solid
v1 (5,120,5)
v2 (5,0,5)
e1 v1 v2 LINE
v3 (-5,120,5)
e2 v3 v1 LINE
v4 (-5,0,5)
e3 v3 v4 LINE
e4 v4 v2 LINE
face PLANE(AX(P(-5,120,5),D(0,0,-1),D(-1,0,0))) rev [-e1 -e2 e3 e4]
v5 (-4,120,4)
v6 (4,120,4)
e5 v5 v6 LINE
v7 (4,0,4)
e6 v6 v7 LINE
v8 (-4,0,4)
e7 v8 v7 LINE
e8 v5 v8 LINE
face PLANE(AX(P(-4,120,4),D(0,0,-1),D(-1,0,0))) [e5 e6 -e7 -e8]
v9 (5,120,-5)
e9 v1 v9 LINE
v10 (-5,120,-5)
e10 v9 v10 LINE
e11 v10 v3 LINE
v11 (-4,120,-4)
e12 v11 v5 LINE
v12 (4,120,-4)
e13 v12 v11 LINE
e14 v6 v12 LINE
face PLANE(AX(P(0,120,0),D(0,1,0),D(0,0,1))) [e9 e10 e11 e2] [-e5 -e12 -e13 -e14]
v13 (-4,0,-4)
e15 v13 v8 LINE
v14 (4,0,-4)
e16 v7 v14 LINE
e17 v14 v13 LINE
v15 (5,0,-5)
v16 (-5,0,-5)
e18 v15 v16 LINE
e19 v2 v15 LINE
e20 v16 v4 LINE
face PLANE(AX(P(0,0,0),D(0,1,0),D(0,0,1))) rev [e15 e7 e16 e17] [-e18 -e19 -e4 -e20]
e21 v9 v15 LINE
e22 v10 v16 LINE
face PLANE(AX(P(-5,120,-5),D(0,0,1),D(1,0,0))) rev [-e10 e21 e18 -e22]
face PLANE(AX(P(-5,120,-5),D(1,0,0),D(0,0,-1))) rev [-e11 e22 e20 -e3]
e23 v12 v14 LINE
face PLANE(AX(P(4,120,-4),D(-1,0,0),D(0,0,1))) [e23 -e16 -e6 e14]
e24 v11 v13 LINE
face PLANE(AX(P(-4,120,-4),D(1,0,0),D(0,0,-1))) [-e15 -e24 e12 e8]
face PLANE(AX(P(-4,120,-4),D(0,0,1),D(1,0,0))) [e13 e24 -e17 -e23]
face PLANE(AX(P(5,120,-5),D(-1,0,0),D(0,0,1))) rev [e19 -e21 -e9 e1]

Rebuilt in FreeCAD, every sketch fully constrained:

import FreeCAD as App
import Part
import Sketcher
Q = App.Units.Quantity

doc = App.newDocument("Part")
params = doc.addObject("Spreadsheet::Sheet", "Params")
for row, (alias, value) in enumerate([
    ("sketch1_width", "10 mm"),
    ("sketch1_width2", "8 mm"),
    ("pad1_length", "120 mm"),
], start=1):
    params.set(f"A{row}", alias)
    params.set(f"B{row}", "=" + value)
    params.setAlias(f"B{row}", alias)

body = doc.addObject("PartDesign::Body", "Body")

# Sketch on XZ plane
sketch1 = body.newObject("Sketcher::SketchObject", "Sketch")
sketch1.AttachmentSupport = (doc.getObject("XZ_Plane"), [""])
sketch1.MapMode = "FlatFace"
sketch1.addGeometry([
    Part.LineSegment(App.Vector(-5, -5, 0), App.Vector(-5, 5, 0)),  # 0
    Part.LineSegment(App.Vector(-5, 5, 0), App.Vector(5, 5, 0)),  # 1
    Part.LineSegment(App.Vector(5, 5, 0), App.Vector(5, -5, 0)),  # 2
    Part.LineSegment(App.Vector(5, -5, 0), App.Vector(-5, -5, 0)),  # 3
    Part.LineSegment(App.Vector(4, 4, 0), App.Vector(-4, 4, 0)),  # 4
    Part.LineSegment(App.Vector(-4, 4, 0), App.Vector(-4, -4, 0)),  # 5
    Part.LineSegment(App.Vector(-4, -4, 0), App.Vector(4, -4, 0)),  # 6
    Part.LineSegment(App.Vector(4, -4, 0), App.Vector(4, 4, 0)),  # 7
], False)
sketch1.addConstraint([
    Sketcher.Constraint("Coincident", 0, 2, 1, 1),
    Sketcher.Constraint("Coincident", 1, 2, 2, 1),
    Sketcher.Constraint("Coincident", 2, 2, 3, 1),
    Sketcher.Constraint("Coincident", 3, 2, 0, 1),
    Sketcher.Constraint("Coincident", 4, 2, 5, 1),
    Sketcher.Constraint("Coincident", 5, 2, 6, 1),
    Sketcher.Constraint("Coincident", 6, 2, 7, 1),
    Sketcher.Constraint("Coincident", 7, 2, 4, 1),
    Sketcher.Constraint("Vertical", 0),
    Sketcher.Constraint("Horizontal", 1),
    Sketcher.Constraint("Vertical", 2),
    Sketcher.Constraint("Horizontal", 3),
    Sketcher.Constraint("Horizontal", 4),
    Sketcher.Constraint("Vertical", 5),
    Sketcher.Constraint("Horizontal", 6),
    Sketcher.Constraint("Vertical", 7),
    Sketcher.Constraint("Symmetric", 0, 2, 2, 2, -1, 1),
    Sketcher.Constraint("Symmetric", 4, 2, 6, 2, -1, 1),
    Sketcher.Constraint("Equal", 3, 0),
    Sketcher.Constraint("Equal", 6, 5),
    Sketcher.Constraint("DistanceX", 1, 1, 1, 2, Q("10 mm")),
    Sketcher.Constraint("DistanceX", 4, 2, 4, 1, Q("8 mm")),
])
sketch1.setExpression("Constraints[20]", "Params.sketch1_width")
sketch1.setExpression("Constraints[21]", "Params.sketch1_width2")
pad1 = body.newObject("PartDesign::Pad", "Pad")
pad1.Profile = sketch1
pad1.setExpression("Length", "Params.pad1_length")
pad1.Reversed = True

doc.recompute()
